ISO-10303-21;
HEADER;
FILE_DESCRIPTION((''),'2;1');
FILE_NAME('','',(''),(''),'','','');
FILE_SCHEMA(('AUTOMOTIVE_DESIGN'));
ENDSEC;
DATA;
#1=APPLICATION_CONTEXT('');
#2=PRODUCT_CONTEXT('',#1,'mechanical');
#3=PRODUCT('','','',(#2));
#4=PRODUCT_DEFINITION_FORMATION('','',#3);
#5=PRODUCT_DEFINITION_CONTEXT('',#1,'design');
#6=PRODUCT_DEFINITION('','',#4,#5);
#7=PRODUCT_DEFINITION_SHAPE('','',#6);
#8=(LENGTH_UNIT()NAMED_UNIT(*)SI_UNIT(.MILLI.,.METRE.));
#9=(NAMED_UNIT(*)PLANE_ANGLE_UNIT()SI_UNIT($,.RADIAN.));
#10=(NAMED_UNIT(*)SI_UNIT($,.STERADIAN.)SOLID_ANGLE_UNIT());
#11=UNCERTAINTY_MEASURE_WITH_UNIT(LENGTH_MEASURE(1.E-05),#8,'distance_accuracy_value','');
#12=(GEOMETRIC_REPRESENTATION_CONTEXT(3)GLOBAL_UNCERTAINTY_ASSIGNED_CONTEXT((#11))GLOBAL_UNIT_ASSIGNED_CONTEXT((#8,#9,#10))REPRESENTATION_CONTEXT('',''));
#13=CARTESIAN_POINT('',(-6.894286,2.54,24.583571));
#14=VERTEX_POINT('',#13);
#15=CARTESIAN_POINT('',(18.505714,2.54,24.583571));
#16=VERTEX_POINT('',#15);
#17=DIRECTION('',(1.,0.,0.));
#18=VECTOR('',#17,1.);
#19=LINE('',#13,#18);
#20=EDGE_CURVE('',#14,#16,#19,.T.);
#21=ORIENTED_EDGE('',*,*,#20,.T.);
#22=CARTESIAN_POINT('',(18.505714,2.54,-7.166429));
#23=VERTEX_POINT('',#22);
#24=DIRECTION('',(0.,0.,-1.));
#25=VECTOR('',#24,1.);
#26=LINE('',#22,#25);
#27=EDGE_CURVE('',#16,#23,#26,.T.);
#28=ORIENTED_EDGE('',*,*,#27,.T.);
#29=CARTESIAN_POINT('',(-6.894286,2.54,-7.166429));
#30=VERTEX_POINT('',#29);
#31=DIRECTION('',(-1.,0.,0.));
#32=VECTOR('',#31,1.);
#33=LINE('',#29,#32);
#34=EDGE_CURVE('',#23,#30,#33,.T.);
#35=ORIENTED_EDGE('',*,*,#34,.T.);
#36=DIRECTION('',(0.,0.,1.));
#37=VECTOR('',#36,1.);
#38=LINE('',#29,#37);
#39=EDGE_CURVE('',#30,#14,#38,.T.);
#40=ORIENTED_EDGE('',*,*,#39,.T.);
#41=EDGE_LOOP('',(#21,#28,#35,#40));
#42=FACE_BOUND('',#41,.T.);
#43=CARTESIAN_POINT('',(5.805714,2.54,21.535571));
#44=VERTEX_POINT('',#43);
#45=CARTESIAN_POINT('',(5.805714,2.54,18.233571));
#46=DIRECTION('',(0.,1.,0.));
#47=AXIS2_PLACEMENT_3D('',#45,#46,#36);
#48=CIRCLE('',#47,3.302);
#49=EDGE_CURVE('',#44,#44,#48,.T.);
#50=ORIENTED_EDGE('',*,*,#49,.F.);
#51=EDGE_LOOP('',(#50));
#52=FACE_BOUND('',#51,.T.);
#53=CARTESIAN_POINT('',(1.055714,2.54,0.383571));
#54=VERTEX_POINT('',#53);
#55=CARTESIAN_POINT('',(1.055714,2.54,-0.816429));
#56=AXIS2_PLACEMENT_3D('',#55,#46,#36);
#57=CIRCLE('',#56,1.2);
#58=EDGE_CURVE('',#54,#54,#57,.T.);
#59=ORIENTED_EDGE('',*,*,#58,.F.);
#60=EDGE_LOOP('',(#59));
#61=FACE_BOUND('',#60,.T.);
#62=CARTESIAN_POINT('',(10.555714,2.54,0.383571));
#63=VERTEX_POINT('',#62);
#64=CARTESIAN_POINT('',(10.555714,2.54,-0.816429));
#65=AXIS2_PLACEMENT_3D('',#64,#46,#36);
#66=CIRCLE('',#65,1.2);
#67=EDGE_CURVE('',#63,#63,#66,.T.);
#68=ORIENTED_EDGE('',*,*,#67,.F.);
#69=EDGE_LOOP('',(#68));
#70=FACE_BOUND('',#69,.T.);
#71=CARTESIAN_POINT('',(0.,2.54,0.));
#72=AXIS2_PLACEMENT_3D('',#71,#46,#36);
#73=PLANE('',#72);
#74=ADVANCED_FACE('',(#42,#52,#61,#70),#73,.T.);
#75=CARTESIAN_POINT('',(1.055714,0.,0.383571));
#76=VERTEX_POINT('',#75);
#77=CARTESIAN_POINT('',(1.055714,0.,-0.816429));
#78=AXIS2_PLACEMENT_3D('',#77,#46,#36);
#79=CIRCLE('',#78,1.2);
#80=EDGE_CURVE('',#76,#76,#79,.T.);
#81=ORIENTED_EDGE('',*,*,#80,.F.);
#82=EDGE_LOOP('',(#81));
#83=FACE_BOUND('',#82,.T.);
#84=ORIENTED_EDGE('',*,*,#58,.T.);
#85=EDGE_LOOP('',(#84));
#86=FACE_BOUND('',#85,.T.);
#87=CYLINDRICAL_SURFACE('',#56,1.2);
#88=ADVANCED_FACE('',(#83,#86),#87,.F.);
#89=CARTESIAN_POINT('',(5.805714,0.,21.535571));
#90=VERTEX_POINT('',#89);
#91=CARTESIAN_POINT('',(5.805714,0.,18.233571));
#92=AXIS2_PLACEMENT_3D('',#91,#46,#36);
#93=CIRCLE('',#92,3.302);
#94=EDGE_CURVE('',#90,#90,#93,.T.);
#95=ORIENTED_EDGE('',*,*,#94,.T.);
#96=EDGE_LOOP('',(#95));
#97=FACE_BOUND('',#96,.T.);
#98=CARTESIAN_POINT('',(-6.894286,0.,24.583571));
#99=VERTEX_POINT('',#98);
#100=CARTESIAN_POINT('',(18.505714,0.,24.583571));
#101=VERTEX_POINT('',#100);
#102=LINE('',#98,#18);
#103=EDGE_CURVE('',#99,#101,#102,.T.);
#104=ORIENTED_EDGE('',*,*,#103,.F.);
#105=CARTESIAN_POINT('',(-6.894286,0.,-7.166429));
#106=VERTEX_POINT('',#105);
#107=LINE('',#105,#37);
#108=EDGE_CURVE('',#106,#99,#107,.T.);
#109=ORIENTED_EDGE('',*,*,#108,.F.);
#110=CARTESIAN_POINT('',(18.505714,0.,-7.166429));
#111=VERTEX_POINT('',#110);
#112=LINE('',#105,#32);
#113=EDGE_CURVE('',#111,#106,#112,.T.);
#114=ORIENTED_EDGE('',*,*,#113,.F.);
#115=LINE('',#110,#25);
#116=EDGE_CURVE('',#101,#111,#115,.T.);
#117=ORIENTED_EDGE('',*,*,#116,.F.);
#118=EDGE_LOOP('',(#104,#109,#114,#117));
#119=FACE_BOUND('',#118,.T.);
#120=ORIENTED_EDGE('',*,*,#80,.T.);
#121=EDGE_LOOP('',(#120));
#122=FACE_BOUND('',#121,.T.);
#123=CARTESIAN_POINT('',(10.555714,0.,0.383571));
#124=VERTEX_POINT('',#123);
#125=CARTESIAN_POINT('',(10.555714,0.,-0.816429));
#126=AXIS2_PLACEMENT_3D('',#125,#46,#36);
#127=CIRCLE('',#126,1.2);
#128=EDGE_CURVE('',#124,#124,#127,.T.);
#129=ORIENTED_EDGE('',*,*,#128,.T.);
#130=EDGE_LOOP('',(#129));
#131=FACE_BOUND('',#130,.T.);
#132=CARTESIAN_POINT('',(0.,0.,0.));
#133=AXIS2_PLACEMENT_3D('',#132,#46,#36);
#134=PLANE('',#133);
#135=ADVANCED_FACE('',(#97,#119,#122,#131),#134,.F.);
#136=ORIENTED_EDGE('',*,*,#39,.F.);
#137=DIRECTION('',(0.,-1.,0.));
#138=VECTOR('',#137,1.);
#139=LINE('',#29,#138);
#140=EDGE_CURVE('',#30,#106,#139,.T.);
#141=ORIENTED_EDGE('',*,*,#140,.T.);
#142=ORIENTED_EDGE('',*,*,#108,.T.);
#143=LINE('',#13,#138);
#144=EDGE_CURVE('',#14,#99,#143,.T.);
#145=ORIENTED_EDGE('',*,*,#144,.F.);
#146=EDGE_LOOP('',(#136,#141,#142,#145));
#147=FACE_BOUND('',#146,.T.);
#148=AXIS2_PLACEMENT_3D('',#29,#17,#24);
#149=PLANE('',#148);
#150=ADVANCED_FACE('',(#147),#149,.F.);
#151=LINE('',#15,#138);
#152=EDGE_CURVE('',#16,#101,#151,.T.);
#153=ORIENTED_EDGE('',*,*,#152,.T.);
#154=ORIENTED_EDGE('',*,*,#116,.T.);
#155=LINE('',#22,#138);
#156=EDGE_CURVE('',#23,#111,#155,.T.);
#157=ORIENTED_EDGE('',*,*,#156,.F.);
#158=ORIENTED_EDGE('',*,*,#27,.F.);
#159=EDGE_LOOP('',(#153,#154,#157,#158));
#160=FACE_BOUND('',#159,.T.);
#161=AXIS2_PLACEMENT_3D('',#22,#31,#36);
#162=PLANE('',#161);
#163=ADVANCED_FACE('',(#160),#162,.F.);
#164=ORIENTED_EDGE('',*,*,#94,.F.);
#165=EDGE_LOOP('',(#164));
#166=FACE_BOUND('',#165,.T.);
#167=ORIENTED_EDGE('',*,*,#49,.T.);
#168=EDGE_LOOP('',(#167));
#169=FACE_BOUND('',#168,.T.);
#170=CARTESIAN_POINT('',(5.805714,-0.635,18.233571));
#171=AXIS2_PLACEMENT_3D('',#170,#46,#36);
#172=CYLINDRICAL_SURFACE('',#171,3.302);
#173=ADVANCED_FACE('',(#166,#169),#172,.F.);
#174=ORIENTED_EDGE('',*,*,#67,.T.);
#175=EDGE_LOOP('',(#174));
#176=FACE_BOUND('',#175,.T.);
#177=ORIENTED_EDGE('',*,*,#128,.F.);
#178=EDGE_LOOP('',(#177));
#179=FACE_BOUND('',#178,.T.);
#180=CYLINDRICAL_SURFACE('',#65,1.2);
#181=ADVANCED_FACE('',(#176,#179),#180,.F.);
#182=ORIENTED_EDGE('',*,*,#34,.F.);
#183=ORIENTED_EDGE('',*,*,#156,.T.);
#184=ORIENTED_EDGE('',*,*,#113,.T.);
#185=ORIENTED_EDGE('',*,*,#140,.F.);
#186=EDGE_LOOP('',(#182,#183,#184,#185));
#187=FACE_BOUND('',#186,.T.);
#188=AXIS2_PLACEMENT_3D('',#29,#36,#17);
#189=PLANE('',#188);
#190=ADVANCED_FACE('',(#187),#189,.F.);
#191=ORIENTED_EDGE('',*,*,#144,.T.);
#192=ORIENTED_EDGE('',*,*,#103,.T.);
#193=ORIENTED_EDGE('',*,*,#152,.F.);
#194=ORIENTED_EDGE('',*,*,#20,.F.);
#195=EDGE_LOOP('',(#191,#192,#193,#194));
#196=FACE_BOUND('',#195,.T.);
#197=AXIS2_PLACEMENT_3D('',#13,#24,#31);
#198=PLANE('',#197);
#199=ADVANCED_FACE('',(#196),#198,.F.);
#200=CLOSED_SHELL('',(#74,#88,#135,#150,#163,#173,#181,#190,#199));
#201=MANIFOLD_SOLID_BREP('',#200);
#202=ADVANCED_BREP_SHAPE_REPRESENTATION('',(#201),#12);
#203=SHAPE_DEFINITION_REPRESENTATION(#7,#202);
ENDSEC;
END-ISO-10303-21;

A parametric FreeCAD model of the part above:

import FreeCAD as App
import Part
import Sketcher
from FreeCAD import Vector
Q = App.Units.Quantity

doc = App.newDocument("Part")
body = doc.addObject("PartDesign::Body", "Body")

sketch1 = body.newObject("Sketcher::SketchObject", "Sketch")
sketch1.AttachmentSupport = (doc.getObject("XZ_Plane"), [""])
sketch1.MapMode = "FlatFace"
sketch1.addGeometry(Part.LineSegment(Vector(-7, -7, 0), Vector(-7, 25, 0)), False)
sketch1.addGeometry(Part.LineSegment(Vector(-7, 25, 0), Vector(19, 25, 0)), False)
sketch1.addGeometry(Part.LineSegment(Vector(19, 25, 0), Vector(19, -7, 0)), False)
sketch1.addGeometry(Part.LineSegment(Vector(19, -7, 0), Vector(-7, -7, 0)), False)
sketch1.addConstraint(Sketcher.Constraint("Coincident", 0, 2, 1, 1))
sketch1.addConstraint(Sketcher.Constraint("Coincident", 1, 2, 2, 1))
sketch1.addConstraint(Sketcher.Constraint("Coincident", 2, 2, 3, 1))
sketch1.addConstraint(Sketcher.Constraint("Coincident", 3, 2, 0, 1))
sketch1.addConstraint(Sketcher.Constraint("Vertical", 0))
sketch1.addConstraint(Sketcher.Constraint("Horizontal", 1))
sketch1.addConstraint(Sketcher.Constraint("Vertical", 2))
sketch1.addConstraint(Sketcher.Constraint("Horizontal", 3))
sketch1.addConstraint(Sketcher.Constraint("DistanceX", 1, 1, 1, 2, Q("1 in")))
sketch1.addConstraint(Sketcher.Constraint("DistanceY", 0, 1, 0, 2, Q("1.25 in")))
sketch1.addConstraint(Sketcher.Constraint("DistanceY", -1, 1, 0, 2, Q("24.583571 mm")))
sketch1.addConstraint(Sketcher.Constraint("DistanceX", 0, 2, -1, 1, Q("6.894286 mm")))
pad1 = body.newObject("PartDesign::Pad", "Pad")
pad1.Profile = sketch1
pad1.Length = Q("0.1 in")
pad1.Reversed = True

sketch2 = body.newObject("Sketcher::SketchObject", "Sketch001")
sketch2.AttachmentSupport = (doc.getObject("XZ_Plane"), [""])
sketch2.MapMode = "FlatFace"
sketch2.AttachmentOffset = App.Placement(Vector(0, 0, -0.1 * 25.4), App.Rotation())
sketch2.addGeometry(Part.Circle(Vector(1.1, -0.8, 0), Vector(0, 0, 1), 1.2), False)
sketch2.addGeometry(Part.Circle(Vector(10.6, -0.8, 0), Vector(0, 0, 1), 1.2), False)
sketch2.addConstraint(Sketcher.Constraint("Equal", 0, 1))
sketch2.addConstraint(Sketcher.Constraint("Horizontal", 0, 3, 1, 3))
sketch2.addConstraint(Sketcher.Constraint("Diameter", 0, Q("2.4 mm")))
sketch2.addConstraint(Sketcher.Constraint("DistanceX", 0, 3, 1, 3, Q("9.5 mm")))
sketch2.addConstraint(Sketcher.Constraint("DistanceY", 0, 3, -1, 1, Q("0.816429 mm")))
sketch2.addConstraint(Sketcher.Constraint("DistanceX", -1, 1, 0, 3, Q("1.055714 mm")))
doc.recompute()
hole = body.newObject("PartDesign::Hole", "Hole")
hole.Profile = sketch2
hole.ThreadType = "None"
hole.Diameter = 2.4
hole.DepthType = "ThroughAll"
hole.Reversed = True

sketch3 = body.newObject("Sketcher::SketchObject", "Sketch002")
sketch3.AttachmentSupport = (doc.getObject("XZ_Plane"), [""])
sketch3.MapMode = "FlatFace"
sketch3.AttachmentOffset = App.Placement(Vector(0, 0, -0.1 * 25.4), App.Rotation())
sketch3.addGeometry(Part.Circle(Vector(5.8, 18.2, 0), Vector(0, 0, 1), 3.3), False)
sketch3.addConstraint(Sketcher.Constraint("Diameter", 0, Q("0.26 in")))
sketch3.addConstraint(Sketcher.Constraint("DistanceY", -1, 1, 0, 3, Q("18.233571 mm")))
sketch3.addConstraint(Sketcher.Constraint("DistanceX", -1, 1, 0, 3, Q("5.805714 mm")))
pocket1 = body.newObject("PartDesign::Pocket", "Pocket")
pocket1.Profile = sketch3
pocket1.Length = Q("0.125 in")
pocket1.Reversed = True

doc.recompute()
